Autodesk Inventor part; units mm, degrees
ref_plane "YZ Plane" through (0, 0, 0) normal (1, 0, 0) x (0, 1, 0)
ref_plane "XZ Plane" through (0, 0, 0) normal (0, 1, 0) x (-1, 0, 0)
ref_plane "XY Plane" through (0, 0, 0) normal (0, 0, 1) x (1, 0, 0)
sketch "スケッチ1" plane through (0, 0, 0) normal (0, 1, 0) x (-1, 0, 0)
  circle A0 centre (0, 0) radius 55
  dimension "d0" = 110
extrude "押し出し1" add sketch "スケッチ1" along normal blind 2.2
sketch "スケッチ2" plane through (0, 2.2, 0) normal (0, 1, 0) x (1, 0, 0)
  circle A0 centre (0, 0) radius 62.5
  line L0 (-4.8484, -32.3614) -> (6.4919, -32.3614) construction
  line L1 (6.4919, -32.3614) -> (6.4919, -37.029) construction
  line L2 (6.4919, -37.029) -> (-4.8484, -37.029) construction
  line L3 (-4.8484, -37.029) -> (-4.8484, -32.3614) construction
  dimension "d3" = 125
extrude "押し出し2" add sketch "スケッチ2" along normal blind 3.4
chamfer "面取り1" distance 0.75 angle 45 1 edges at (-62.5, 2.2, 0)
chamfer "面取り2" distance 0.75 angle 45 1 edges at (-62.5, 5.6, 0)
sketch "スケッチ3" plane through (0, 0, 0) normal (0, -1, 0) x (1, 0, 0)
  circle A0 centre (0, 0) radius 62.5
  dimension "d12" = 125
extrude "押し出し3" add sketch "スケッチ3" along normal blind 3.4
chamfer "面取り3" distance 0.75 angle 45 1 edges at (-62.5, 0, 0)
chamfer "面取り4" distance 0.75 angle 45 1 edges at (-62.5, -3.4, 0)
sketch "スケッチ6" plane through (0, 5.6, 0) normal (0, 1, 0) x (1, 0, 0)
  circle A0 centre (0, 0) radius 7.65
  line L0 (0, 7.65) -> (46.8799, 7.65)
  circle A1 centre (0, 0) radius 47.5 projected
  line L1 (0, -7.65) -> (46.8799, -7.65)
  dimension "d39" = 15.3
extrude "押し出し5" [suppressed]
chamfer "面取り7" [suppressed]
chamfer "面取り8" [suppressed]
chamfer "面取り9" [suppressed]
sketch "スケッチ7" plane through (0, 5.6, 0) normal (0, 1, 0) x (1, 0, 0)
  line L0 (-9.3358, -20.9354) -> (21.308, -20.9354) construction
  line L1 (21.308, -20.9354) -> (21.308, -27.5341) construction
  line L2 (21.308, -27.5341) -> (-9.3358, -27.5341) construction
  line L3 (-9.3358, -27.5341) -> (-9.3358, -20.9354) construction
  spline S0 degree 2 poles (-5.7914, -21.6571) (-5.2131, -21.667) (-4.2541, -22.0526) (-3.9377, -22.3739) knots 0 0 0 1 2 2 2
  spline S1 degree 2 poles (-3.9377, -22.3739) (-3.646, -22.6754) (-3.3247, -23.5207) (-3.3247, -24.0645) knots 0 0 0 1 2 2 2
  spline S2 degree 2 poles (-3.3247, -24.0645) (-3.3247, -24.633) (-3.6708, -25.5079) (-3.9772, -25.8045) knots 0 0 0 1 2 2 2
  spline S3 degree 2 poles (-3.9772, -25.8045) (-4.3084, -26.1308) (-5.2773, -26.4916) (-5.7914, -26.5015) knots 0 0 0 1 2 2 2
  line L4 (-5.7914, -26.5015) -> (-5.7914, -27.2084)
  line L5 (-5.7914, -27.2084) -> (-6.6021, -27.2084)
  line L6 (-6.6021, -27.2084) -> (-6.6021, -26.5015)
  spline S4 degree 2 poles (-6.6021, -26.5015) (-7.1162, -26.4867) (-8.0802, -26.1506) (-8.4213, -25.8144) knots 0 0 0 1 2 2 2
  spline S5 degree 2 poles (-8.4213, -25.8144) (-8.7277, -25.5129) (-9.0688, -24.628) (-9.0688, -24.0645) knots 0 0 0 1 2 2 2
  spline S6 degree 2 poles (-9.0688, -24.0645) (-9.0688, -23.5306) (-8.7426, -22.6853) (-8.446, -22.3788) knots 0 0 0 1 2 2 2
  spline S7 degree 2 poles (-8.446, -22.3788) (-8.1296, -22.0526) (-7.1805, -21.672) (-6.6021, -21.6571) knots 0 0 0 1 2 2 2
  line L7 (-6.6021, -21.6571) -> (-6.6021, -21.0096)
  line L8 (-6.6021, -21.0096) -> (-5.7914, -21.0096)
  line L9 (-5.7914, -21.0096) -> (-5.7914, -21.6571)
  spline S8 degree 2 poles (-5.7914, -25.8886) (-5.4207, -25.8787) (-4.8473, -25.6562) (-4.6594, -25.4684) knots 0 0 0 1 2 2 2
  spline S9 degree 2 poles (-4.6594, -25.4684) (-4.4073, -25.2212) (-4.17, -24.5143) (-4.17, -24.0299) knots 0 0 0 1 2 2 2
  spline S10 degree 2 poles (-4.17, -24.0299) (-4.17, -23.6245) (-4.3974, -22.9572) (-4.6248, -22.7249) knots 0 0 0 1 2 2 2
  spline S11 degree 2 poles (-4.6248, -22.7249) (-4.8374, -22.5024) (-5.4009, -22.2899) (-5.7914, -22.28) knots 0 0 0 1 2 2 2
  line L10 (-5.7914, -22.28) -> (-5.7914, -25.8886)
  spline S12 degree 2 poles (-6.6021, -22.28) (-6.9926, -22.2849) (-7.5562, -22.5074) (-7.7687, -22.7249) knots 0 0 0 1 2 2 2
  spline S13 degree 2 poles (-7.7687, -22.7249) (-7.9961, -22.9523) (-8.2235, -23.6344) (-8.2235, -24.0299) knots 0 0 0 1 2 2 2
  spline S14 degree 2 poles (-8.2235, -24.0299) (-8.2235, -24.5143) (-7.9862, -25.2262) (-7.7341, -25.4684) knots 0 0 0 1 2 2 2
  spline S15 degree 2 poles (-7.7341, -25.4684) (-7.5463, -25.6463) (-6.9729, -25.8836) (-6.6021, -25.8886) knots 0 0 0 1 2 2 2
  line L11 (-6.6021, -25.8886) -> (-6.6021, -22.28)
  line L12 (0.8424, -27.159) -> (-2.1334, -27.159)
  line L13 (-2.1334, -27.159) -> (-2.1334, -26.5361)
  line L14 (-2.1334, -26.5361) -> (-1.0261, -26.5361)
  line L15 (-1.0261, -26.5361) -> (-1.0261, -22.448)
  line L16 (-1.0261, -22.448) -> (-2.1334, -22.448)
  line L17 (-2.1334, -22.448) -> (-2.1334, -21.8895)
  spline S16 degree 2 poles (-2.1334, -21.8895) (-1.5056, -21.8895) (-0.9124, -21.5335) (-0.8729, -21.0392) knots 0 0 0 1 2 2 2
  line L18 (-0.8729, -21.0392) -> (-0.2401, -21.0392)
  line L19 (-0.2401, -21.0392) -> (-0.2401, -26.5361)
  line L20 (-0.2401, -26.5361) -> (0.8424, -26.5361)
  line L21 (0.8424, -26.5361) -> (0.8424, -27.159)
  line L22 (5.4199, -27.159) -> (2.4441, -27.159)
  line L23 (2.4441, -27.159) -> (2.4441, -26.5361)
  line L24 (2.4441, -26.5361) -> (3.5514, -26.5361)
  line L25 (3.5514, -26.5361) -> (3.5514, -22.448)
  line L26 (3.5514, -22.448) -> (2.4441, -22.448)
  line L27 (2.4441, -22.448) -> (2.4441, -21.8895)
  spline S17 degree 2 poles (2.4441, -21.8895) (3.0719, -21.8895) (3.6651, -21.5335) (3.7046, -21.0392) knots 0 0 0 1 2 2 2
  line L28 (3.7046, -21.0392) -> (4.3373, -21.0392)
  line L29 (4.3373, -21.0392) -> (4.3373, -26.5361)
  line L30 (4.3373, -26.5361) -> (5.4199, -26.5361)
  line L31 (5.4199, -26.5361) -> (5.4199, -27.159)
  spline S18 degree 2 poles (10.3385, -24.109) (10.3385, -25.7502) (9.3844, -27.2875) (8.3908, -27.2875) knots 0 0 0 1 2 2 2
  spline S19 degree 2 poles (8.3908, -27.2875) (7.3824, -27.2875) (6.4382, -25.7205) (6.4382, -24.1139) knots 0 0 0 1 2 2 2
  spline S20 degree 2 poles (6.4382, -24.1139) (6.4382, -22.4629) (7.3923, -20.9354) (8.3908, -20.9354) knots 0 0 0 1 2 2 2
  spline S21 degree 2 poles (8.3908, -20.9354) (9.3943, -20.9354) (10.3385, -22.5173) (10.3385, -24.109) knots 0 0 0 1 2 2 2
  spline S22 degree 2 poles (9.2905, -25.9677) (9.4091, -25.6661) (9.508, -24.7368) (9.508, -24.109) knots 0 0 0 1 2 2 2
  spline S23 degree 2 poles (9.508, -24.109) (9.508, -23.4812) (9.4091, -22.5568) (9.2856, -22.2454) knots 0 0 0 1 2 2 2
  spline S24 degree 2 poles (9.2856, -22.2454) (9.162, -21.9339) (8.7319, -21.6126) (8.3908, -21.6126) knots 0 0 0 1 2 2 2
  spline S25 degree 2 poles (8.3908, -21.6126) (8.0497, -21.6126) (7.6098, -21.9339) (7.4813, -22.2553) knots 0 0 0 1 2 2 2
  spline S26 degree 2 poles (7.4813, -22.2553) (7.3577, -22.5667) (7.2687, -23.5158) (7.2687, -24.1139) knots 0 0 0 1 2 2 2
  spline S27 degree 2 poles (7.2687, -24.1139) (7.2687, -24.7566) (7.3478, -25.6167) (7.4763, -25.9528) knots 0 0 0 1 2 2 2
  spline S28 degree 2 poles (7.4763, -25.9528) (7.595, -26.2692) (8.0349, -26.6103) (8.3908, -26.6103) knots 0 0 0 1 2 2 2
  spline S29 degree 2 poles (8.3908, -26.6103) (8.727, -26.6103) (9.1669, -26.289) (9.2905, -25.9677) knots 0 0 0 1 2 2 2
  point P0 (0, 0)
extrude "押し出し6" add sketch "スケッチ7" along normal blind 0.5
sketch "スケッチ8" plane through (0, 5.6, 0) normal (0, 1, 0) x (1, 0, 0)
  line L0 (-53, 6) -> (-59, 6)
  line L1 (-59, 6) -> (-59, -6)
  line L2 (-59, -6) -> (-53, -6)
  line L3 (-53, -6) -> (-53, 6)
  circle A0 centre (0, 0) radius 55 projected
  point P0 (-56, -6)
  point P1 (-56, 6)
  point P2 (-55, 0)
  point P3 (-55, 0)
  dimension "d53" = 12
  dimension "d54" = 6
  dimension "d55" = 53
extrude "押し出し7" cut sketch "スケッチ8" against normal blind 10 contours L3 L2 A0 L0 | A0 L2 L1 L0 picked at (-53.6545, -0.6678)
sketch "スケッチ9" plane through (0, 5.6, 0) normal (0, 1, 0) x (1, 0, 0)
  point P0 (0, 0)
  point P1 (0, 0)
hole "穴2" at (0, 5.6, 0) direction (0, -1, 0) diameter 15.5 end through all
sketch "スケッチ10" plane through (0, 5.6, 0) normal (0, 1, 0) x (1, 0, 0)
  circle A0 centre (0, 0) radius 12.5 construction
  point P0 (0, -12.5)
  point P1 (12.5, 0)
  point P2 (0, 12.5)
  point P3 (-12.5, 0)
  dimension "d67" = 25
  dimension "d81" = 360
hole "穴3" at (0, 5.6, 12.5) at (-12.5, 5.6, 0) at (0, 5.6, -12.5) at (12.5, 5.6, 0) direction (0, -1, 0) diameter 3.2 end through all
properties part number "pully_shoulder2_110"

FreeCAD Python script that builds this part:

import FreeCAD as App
import Part
import Sketcher
Q = App.Units.Quantity


def edges_at(feature, points):
    """Names of the edges that pass closest to the given points."""
    edges = feature.Shape.Edges
    near = lambda p: min(range(len(edges)), key=lambda i: edges[i].distToShape(Part.Vertex(*p))[0])
    return sorted({f"Edge{near(p) + 1}" for p in points})

doc = App.newDocument("Part")
body = doc.addObject("PartDesign::Body", "Body")

# Sketch on XZ plane
sketch1 = body.newObject("Sketcher::SketchObject", "Sketch")
sketch1.AttachmentSupport = (doc.getObject("XZ_Plane"), [""])
sketch1.MapMode = "FlatFace"
sketch1.addGeometry(Part.Circle(App.Vector(0, 0, 0), App.Vector(0, 0, 1), 55), False)
sketch1.addConstraint([
    Sketcher.Constraint("Coincident", 0, 3, -1, 1),
    Sketcher.Constraint("Diameter", 0, Q("110 mm")),
])
pad1 = body.newObject("PartDesign::Pad", "Pad")
pad1.Profile = sketch1
pad1.Length = 2.2
pad1.Reversed = True

# Sketch on XZ plane
sketch2 = body.newObject("Sketcher::SketchObject", "Sketch001")
sketch2.AttachmentSupport = (doc.getObject("XZ_Plane"), [""])
sketch2.MapMode = "FlatFace"
sketch2.AttachmentOffset = App.Placement(App.Vector(0, 0, -2.2), App.Rotation())
sketch2.addGeometry(Part.Circle(App.Vector(0, 0, 0), App.Vector(0, 0, 1), 62), False)
sketch2.addConstraint([
    Sketcher.Constraint("Coincident", 0, 3, -1, 1),
    Sketcher.Constraint("Diameter", 0, Q("125 mm")),
])
pad2 = body.newObject("PartDesign::Pad", "Pad001")
pad2.Profile = sketch2
pad2.Length = 3.4
pad2.Reversed = True
doc.recompute()

chamfer = body.newObject("PartDesign::Chamfer", "Chamfer")
chamfer.Base = (pad2, edges_at(pad2, [(-62.5, 2.2, 0)]))
chamfer.Size = 0.75
doc.recompute()

chamfer2 = body.newObject("PartDesign::Chamfer", "Chamfer001")
chamfer2.Base = (chamfer, edges_at(chamfer, [(-62.5, 5.6, 0)]))
chamfer2.Size = 0.75

# Sketch on XZ plane
sketch3 = body.newObject("Sketcher::SketchObject", "Sketch002")
sketch3.AttachmentSupport = (doc.getObject("XZ_Plane"), [""])
sketch3.MapMode = "FlatFace"
sketch3.addGeometry(Part.Circle(App.Vector(0, 0, 0), App.Vector(0, 0, 1), 62), False)
sketch3.addConstraint([
    Sketcher.Constraint("Coincident", 0, 3, -1, 1),
    Sketcher.Constraint("Diameter", 0, Q("125 mm")),
])
pad3 = body.newObject("PartDesign::Pad", "Pad002")
pad3.Profile = sketch3
pad3.Length = 3.4
doc.recompute()

chamfer3 = body.newObject("PartDesign::Chamfer", "Chamfer002")
chamfer3.Base = (pad3, edges_at(pad3, [(-62.5, 0, 0)]))
chamfer3.Size = 0.75
doc.recompute()

chamfer4 = body.newObject("PartDesign::Chamfer", "Chamfer003")
chamfer4.Base = (chamfer3, edges_at(chamfer3, [(-62.5, -3.4, 0)]))
chamfer4.Size = 0.75

# Sketch on XZ plane
sketch4 = body.newObject("Sketcher::SketchObject", "Sketch003")
sketch4.AttachmentSupport = (doc.getObject("XZ_Plane"), [""])
sketch4.MapMode = "FlatFace"
sketch4.AttachmentOffset = App.Placement(App.Vector(0, 0, -5.6), App.Rotation())
sketch4.addGeometry([
    Part.BSplineCurve([App.Vector(-5.7914, 21.6571, 0), App.Vector(-5.2131, 21.667, 0), App.Vector(-4.2541, 22.0526, 0), App.Vector(-3.9377, 22.3739, 0)], [3, 1, 3], [0, 1, 2], False, 2, [1, 1, 1, 1], False),  # 0
    Part.LineSegment(App.Vector(-5.7914, 21.6571, 0), App.Vector(-5.7914, 21.0096, 0)),  # 1
    Part.LineSegment(App.Vector(-5.7914, 21.0096, 0), App.Vector(-6.6021, 21.0096, 0)),  # 2
    Part.LineSegment(App.Vector(-6.6021, 21.0096, 0), App.Vector(-6.6021, 21.6571, 0)),  # 3
    Part.BSplineCurve([App.Vector(-8.446, 22.3788, 0), App.Vector(-8.1296, 22.0526, 0), App.Vector(-7.1805, 21.672, 0), App.Vector(-6.6021, 21.6571, 0)], [3, 1, 3], [0, 1, 2], False, 2, [1, 1, 1, 1], False),  # 4
    Part.BSplineCurve([App.Vector(-9.0688, 24.0645, 0), App.Vector(-9.0688, 23.5306, 0), App.Vector(-8.7426, 22.6853, 0), App.Vector(-8.446, 22.3788, 0)], [3, 1, 3], [0, 1, 2], False, 2, [1, 1, 1, 1], False),  # 5
    Part.BSplineCurve([App.Vector(-8.4213, 25.8144, 0), App.Vector(-8.7277, 25.5129, 0), App.Vector(-9.0688, 24.628, 0), App.Vector(-9.0688, 24.0645, 0)], [3, 1, 3], [0, 1, 2], False, 2, [1, 1, 1, 1], False),  # 6
    Part.BSplineCurve([App.Vector(-6.6021, 26.5015, 0), App.Vector(-7.1162, 26.4867, 0), App.Vector(-8.0802, 26.1506, 0), App.Vector(-8.4213, 25.8144, 0)], [3, 1, 3], [0, 1, 2], False, 2, [1, 1, 1, 1], False),  # 7
    Part.LineSegment(App.Vector(-6.6021, 26.5015, 0), App.Vector(-6.6021, 27.2084, 0)),  # 8
    Part.LineSegment(App.Vector(-6.6021, 27.2084, 0), App.Vector(-5.7914, 27.2084, 0)),  # 9
    Part.LineSegment(App.Vector(-5.7914, 27.2084, 0), App.Vector(-5.7914, 26.5015, 0)),  # 10
    Part.BSplineCurve([App.Vector(-3.9772, 25.8045, 0), App.Vector(-4.3084, 26.1308, 0), App.Vector(-5.2773, 26.4916, 0), App.Vector(-5.7914, 26.5015, 0)], [3, 1, 3], [0, 1, 2], False, 2, [1, 1, 1, 1], False),  # 11
    Part.BSplineCurve([App.Vector(-3.3247, 24.0645, 0), App.Vector(-3.3247, 24.633, 0), App.Vector(-3.6708, 25.5079, 0), App.Vector(-3.9772, 25.8045, 0)], [3, 1, 3], [0, 1, 2], False, 2, [1, 1, 1, 1], False),  # 12
    Part.BSplineCurve([App.Vector(-3.9377, 22.3739, 0), App.Vector(-3.646, 22.6754, 0), App.Vector(-3.3247, 23.5207, 0), App.Vector(-3.3247, 24.0645, 0)], [3, 1, 3], [0, 1, 2], False, 2, [1, 1, 1, 1], False),  # 13
    Part.BSplineCurve([App.Vector(-6.6021, 22.28, 0), App.Vector(-6.9926, 22.2849, 0), App.Vector(-7.5562, 22.5074, 0), App.Vector(-7.7687, 22.7249, 0)], [3, 1, 3], [0, 1, 2], False, 2, [1, 1, 1, 1], False),  # 14
    Part.LineSegment(App.Vector(-6.6021, 22.28, 0), App.Vector(-6.6021, 25.8886, 0)),  # 15
    Part.BSplineCurve([App.Vector(-7.7341, 25.4684, 0), App.Vector(-7.5463, 25.6463, 0), App.Vector(-6.9729, 25.8836, 0), App.Vector(-6.6021, 25.8886, 0)], [3, 1, 3], [0, 1, 2], False, 2, [1, 1, 1, 1], False),  # 16
    Part.BSplineCurve([App.Vector(-8.2235, 24.0299, 0), App.Vector(-8.2235, 24.5143, 0), App.Vector(-7.9862, 25.2262, 0), App.Vector(-7.7341, 25.4684, 0)], [3, 1, 3], [0, 1, 2], False, 2, [1, 1, 1, 1], False),  # 17
    Part.BSplineCurve([App.Vector(-7.7687, 22.7249, 0), App.Vector(-7.9961, 22.9523, 0), App.Vector(-8.2235, 23.6344, 0), App.Vector(-8.2235, 24.0299, 0)], [3, 1, 3], [0, 1, 2], False, 2, [1, 1, 1, 1], False),  # 18
    Part.BSplineCurve([App.Vector(-5.7914, 25.8886, 0), App.Vector(-5.4207, 25.8787, 0), App.Vector(-4.8473, 25.6562, 0), App.Vector(-4.6594, 25.4684, 0)], [3, 1, 3], [0, 1, 2], False, 2, [1, 1, 1, 1], False),  # 19
    Part.LineSegment(App.Vector(-5.7914, 25.8886, 0), App.Vector(-5.7914, 22.28, 0)),  # 20
    Part.BSplineCurve([App.Vector(-4.6248, 22.7249, 0), App.Vector(-4.8374, 22.5024, 0), App.Vector(-5.4009, 22.2899, 0), App.Vector(-5.7914, 22.28, 0)], [3, 1, 3], [0, 1, 2], False, 2, [1, 1, 1, 1], False),  # 21
    Part.BSplineCurve([App.Vector(-4.17, 24.0299, 0), App.Vector(-4.17, 23.6245, 0), App.Vector(-4.3974, 22.9572, 0), App.Vector(-4.6248, 22.7249, 0)], [3, 1, 3], [0, 1, 2], False, 2, [1, 1, 1, 1], False),  # 22
    Part.BSplineCurve([App.Vector(-4.6594, 25.4684, 0), App.Vector(-4.4073, 25.2212, 0), App.Vector(-4.17, 24.5143, 0), App.Vector(-4.17, 24.0299, 0)], [3, 1, 3], [0, 1, 2], False, 2, [1, 1, 1, 1], False),  # 23
    Part.LineSegment(App.Vector(-2.1334, 27.159, 0), App.Vector(0.8424, 27.159, 0)),  # 24
    Part.LineSegment(App.Vector(0.8424, 27.159, 0), App.Vector(0.8424, 26.5361, 0)),  # 25
    Part.LineSegment(App.Vector(0.8424, 26.5361, 0), App.Vector(-0.2401, 26.5361, 0)),  # 26
    Part.LineSegment(App.Vector(-0.2401, 26.5361, 0), App.Vector(-0.2401, 21.0392, 0)),  # 27
    Part.LineSegment(App.Vector(-0.2401, 21.0392, 0), App.Vector(-0.8729, 21.0392, 0)),  # 28
    Part.BSplineCurve([App.Vector(-2.1334, 21.8895, 0), App.Vector(-1.5056, 21.8895, 0), App.Vector(-0.9124, 21.5335, 0), App.Vector(-0.8729, 21.0392, 0)], [3, 1, 3], [0, 1, 2], False, 2, [1, 1, 1, 1], False),  # 29
    Part.LineSegment(App.Vector(-2.1334, 21.8895, 0), App.Vector(-2.1334, 22.448, 0)),  # 30
    Part.LineSegment(App.Vector(-2.1334, 22.448, 0), App.Vector(-1.0261, 22.448, 0)),  # 31
    Part.LineSegment(App.Vector(-1.0261, 22.448, 0), App.Vector(-1.0261, 26.5361, 0)),  # 32
    Part.LineSegment(App.Vector(-1.0261, 26.5361, 0), App.Vector(-2.1334, 26.5361, 0)),  # 33
    Part.LineSegment(App.Vector(-2.1334, 26.5361, 0), App.Vector(-2.1334, 27.159, 0)),  # 34
    Part.LineSegment(App.Vector(2.4441, 27.159, 0), App.Vector(5.4199, 27.159, 0)),  # 35
    Part.LineSegment(App.Vector(5.4199, 27.159, 0), App.Vector(5.4199, 26.5361, 0)),  # 36
    Part.LineSegment(App.Vector(5.4199, 26.5361, 0), App.Vector(4.3373, 26.5361, 0)),  # 37
    Part.LineSegment(App.Vector(4.3373, 26.5361, 0), App.Vector(4.3373, 21.0392, 0)),  # 38
    Part.LineSegment(App.Vector(4.3373, 21.0392, 0), App.Vector(3.7046, 21.0392, 0)),  # 39
    Part.BSplineCurve([App.Vector(2.4441, 21.8895, 0), App.Vector(3.0719, 21.8895, 0), App.Vector(3.6651, 21.5335, 0), App.Vector(3.7046, 21.0392, 0)], [3, 1, 3], [0, 1, 2], False, 2, [1, 1, 1, 1], False),  # 40
    Part.LineSegment(App.Vector(2.4441, 21.8895, 0), App.Vector(2.4441, 22.448, 0)),  # 41
    Part.LineSegment(App.Vector(2.4441, 22.448, 0), App.Vector(3.5514, 22.448, 0)),  # 42
    Part.LineSegment(App.Vector(3.5514, 22.448, 0), App.Vector(3.5514, 26.5361, 0)),  # 43
    Part.LineSegment(App.Vector(3.5514, 26.5361, 0), App.Vector(2.4441, 26.5361, 0)),  # 44
    Part.LineSegment(App.Vector(2.4441, 26.5361, 0), App.Vector(2.4441, 27.159, 0)),  # 45
    Part.BSplineCurve([App.Vector(10.3385, 24.109, 0), App.Vector(10.3385, 25.7502, 0), App.Vector(9.3844, 27.2875, 0), App.Vector(8.3908, 27.2875, 0)], [3, 1, 3], [0, 1, 2], False, 2, [1, 1, 1, 1], False),  # 46
    Part.BSplineCurve([App.Vector(8.3908, 20.9354, 0), App.Vector(9.3943, 20.9354, 0), App.Vector(10.3385, 22.5173, 0), App.Vector(10.3385, 24.109, 0)], [3, 1, 3], [0, 1, 2], False, 2, [1, 1, 1, 1], False),  # 47
    Part.BSplineCurve([App.Vector(6.4382, 24.1139, 0), App.Vector(6.4382, 22.4629, 0), App.Vector(7.3923, 20.9354, 0), App.Vector(8.3908, 20.9354, 0)], [3, 1, 3], [0, 1, 2], False, 2, [1, 1, 1, 1], False),  # 48
    Part.BSplineCurve([App.Vector(8.3908, 27.2875, 0), App.Vector(7.3824, 27.2875, 0), App.Vector(6.4382, 25.7205, 0), App.Vector(6.4382, 24.1139, 0)], [3, 1, 3], [0, 1, 2], False, 2, [1, 1, 1, 1], False),  # 49
    Part.BSplineCurve([App.Vector(9.2905, 25.9677, 0), App.Vector(9.4091, 25.6661, 0), App.Vector(9.508, 24.7368, 0), App.Vector(9.508, 24.109, 0)], [3, 1, 3], [0, 1, 2], False, 2, [1, 1, 1, 1], False),  # 50
    Part.BSplineCurve([App.Vector(8.3908, 26.6103, 0), App.Vector(8.727, 26.6103, 0), App.Vector(9.1669, 26.289, 0), App.Vector(9.2905, 25.9677, 0)], [3, 1, 3], [0, 1, 2], False, 2, [1, 1, 1, 1], False),  # 51
    Part.BSplineCurve([App.Vector(7.4763, 25.9528, 0), App.Vector(7.595, 26.2692, 0), App.Vector(8.0349, 26.6103, 0), App.Vector(8.3908, 26.6103, 0)], [3, 1, 3], [0, 1, 2], False, 2, [1, 1, 1, 1], False),  # 52
    Part.BSplineCurve([App.Vector(7.2687, 24.1139, 0), App.Vector(7.2687, 24.7566, 0), App.Vector(7.3478, 25.6167, 0), App.Vector(7.4763, 25.9528, 0)], [3, 1, 3], [0, 1, 2], False, 2, [1, 1, 1, 1], False),  # 53
    Part.BSplineCurve([App.Vector(7.4813, 22.2553, 0), App.Vector(7.3577, 22.5667, 0), App.Vector(7.2687, 23.5158, 0), App.Vector(7.2687, 24.1139, 0)], [3, 1, 3], [0, 1, 2], False, 2, [1, 1, 1, 1], False),  # 54
    Part.BSplineCurve([App.Vector(8.3908, 21.6126, 0), App.Vector(8.0497, 21.6126, 0), App.Vector(7.6098, 21.9339, 0), App.Vector(7.4813, 22.2553, 0)], [3, 1, 3], [0, 1, 2], False, 2, [1, 1, 1, 1], False),  # 55
    Part.BSplineCurve([App.Vector(9.2856, 22.2454, 0), App.Vector(9.162, 21.9339, 0), App.Vector(8.7319, 21.6126, 0), App.Vector(8.3908, 21.6126, 0)], [3, 1, 3], [0, 1, 2], False, 2, [1, 1, 1, 1], False),  # 56
    Part.BSplineCurve([App.Vector(9.508, 24.109, 0), App.Vector(9.508, 23.4812, 0), App.Vector(9.4091, 22.5568, 0), App.Vector(9.2856, 22.2454, 0)], [3, 1, 3], [0, 1, 2], False, 2, [1, 1, 1, 1], False),  # 57
], False)
sketch4.addConstraint([
    Sketcher.Constraint("Block", 0),
    Sketcher.Constraint("Block", 4),
    Sketcher.Constraint("Block", 5),
    Sketcher.Constraint("Block", 6),
    Sketcher.Constraint("Block", 7),
    Sketcher.Constraint("Block", 11),
    Sketcher.Constraint("Block", 12),
    Sketcher.Constraint("Block", 13),
    Sketcher.Constraint("Block", 14),
    Sketcher.Constraint("Block", 16),
    Sketcher.Constraint("Block", 17),
    Sketcher.Constraint("Block", 18),
    Sketcher.Constraint("Block", 19),
    Sketcher.Constraint("Block", 21),
    Sketcher.Constraint("Block", 22),
    Sketcher.Constraint("Block", 23),
    Sketcher.Constraint("Block", 29),
    Sketcher.Constraint("Block", 40),
    Sketcher.Constraint("Block", 46),
    Sketcher.Constraint("Block", 47),
    Sketcher.Constraint("Block", 48),
    Sketcher.Constraint("Block", 49),
    Sketcher.Constraint("Block", 50),
    Sketcher.Constraint("Block", 51),
    Sketcher.Constraint("Block", 52),
    Sketcher.Constraint("Block", 53),
    Sketcher.Constraint("Block", 54),
    Sketcher.Constraint("Block", 55),
    Sketcher.Constraint("Block", 56),
    Sketcher.Constraint("Block", 57),
    Sketcher.Constraint("Coincident", 0, 1, 1, 1),
    Sketcher.Constraint("Coincident", 1, 2, 2, 1),
    Sketcher.Constraint("Coincident", 2, 2, 3, 1),
    Sketcher.Constraint("Coincident", 3, 2, 4, 2),
    Sketcher.Constraint("Coincident", 7, 1, 8, 1),
    Sketcher.Constraint("Coincident", 8, 2, 9, 1),
    Sketcher.Constraint("Coincident", 9, 2, 10, 1),
    Sketcher.Constraint("Coincident", 10, 2, 11, 2),
    Sketcher.Constraint("Coincident", 14, 1, 15, 1),
    Sketcher.Constraint("Coincident", 15, 2, 16, 2),
    Sketcher.Constraint("Coincident", 19, 1, 20, 1),
    Sketcher.Constraint("Coincident", 20, 2, 21, 2),
    Sketcher.Constraint("Coincident", 24, 2, 25, 1),
    Sketcher.Constraint("Coincident", 25, 2, 26, 1),
    Sketcher.Constraint("Coincident", 26, 2, 27, 1),
    Sketcher.Constraint("Coincident", 27, 2, 28, 1),
    Sketcher.Constraint("Coincident", 28, 2, 29, 2),
    Sketcher.Constraint("Coincident", 29, 1, 30, 1),
    Sketcher.Constraint("Coincident", 30, 2, 31, 1),
    Sketcher.Constraint("Coincident", 31, 2, 32, 1),
    Sketcher.Constraint("Coincident", 32, 2, 33, 1),
    Sketcher.Constraint("Coincident", 33, 2, 34, 1),
    Sketcher.Constraint("Coincident", 34, 2, 24, 1),
    Sketcher.Constraint("Coincident", 35, 2, 36, 1),
    Sketcher.Constraint("Coincident", 36, 2, 37, 1),
    Sketcher.Constraint("Coincident", 37, 2, 38, 1),
    Sketcher.Constraint("Coincident", 38, 2, 39, 1),
    Sketcher.Constraint("Coincident", 39, 2, 40, 2),
    Sketcher.Constraint("Coincident", 40, 1, 41, 1),
    Sketcher.Constraint("Coincident", 41, 2, 42, 1),
    Sketcher.Constraint("Coincident", 42, 2, 43, 1),
    Sketcher.Constraint("Coincident", 43, 2, 44, 1),
    Sketcher.Constraint("Coincident", 44, 2, 45, 1),
    Sketcher.Constraint("Coincident", 45, 2, 35, 1),
    Sketcher.Constraint("Vertical", 1),
    Sketcher.Constraint("Horizontal", 2),
    Sketcher.Constraint("Vertical", 3),
    Sketcher.Constraint("Vertical", 8),
    Sketcher.Constraint("Horizontal", 9),
    Sketcher.Constraint("Vertical", 10),
    Sketcher.Constraint("Horizontal", 24),
    Sketcher.Constraint("Vertical", 25),
    Sketcher.Constraint("Horizontal", 26),
    Sketcher.Constraint("Vertical", 27),
    Sketcher.Constraint("Horizontal", 28),
    Sketcher.Constraint("Vertical", 30),
    Sketcher.Constraint("Horizontal", 31),
    Sketcher.Constraint("Vertical", 32),
    Sketcher.Constraint("Horizontal", 33),
    Sketcher.Constraint("Vertical", 34),
    Sketcher.Constraint("Horizontal", 35),
    Sketcher.Constraint("Vertical", 36),
    Sketcher.Constraint("Horizontal", 37),
    Sketcher.Constraint("Vertical", 38),
    Sketcher.Constraint("Horizontal", 39),
    Sketcher.Constraint("Vertical", 41),
    Sketcher.Constraint("Horizontal", 42),
    Sketcher.Constraint("Vertical", 43),
    Sketcher.Constraint("Horizontal", 44),
    Sketcher.Constraint("Vertical", 45),
    Sketcher.Constraint("Horizontal", 26, 2, 32, 2),
    Sketcher.Constraint("Horizontal", 34, 2, 35, 2),
    Sketcher.Constraint("Horizontal", 33, 2, 36, 2),
    Sketcher.Constraint("Horizontal", 31, 2, 41, 2),
    Sketcher.Constraint("Horizontal", 37, 2, 43, 2),
    Sketcher.Constraint("Vertical", 30, 2, 33, 2),
    Sketcher.Constraint("Vertical", 41, 2, 44, 2),
    Sketcher.Constraint("Equal", 24, 35),
    Sketcher.Constraint("Equal", 26, 37),
    Sketcher.Constraint("Equal", 33, 42),
    Sketcher.Constraint("DistanceY", 8, 1, 8, 2, Q("0.707 mm")),
    Sketcher.Constraint("DistanceY", 25, 2, 25, 1, Q("0.623 mm")),
    Sketcher.Constraint("DistanceY", 27, 2, 27, 1, Q("5.497 mm")),
    Sketcher.Constraint("DistanceY", 32, 1, 32, 2, Q("4.088 mm")),
    Sketcher.Constraint("DistanceX", 26, 2, -1, 1, Q("0.24 mm")),
    Sketcher.Constraint("DistanceX", -1, 1, 35, 2, Q("5.42 mm")),
    Sketcher.Constraint("DistanceX", 31, 1, 31, 2, Q("1.1073 mm")),
    Sketcher.Constraint("DistanceY", 1, 2, 1, 1, Q("0.6475 mm")),
])
pad4 = body.newObject("PartDesign::Pad", "Pad003")
pad4.Profile = sketch4
pad4.Length = 0.5
pad4.Reversed = True

# Sketch on XZ plane
sketch5 = body.newObject("Sketcher::SketchObject", "Sketch004")
sketch5.AttachmentSupport = (doc.getObject("XZ_Plane"), [""])
sketch5.MapMode = "FlatFace"
sketch5.AttachmentOffset = App.Placement(App.Vector(0, 0, -5.6), App.Rotation())
sketch5.addGeometry([
    Part.LineSegment(App.Vector(-53, 6, 0), App.Vector(-53, -6, 0)),
    Part.LineSegment(App.Vector(-53, -6, 0), App.Vector(-59, -6, 0)),
    Part.LineSegment(App.Vector(-59, -6, 0), App.Vector(-59, 6, 0)),
    Part.LineSegment(App.Vector(-59, 6, 0), App.Vector(-53, 6, 0)),
], False)
sketch5.addConstraint([
    Sketcher.Constraint("Coincident", 0, 2, 1, 1),
    Sketcher.Constraint("Coincident", 1, 2, 2, 1),
    Sketcher.Constraint("Coincident", 2, 2, 3, 1),
    Sketcher.Constraint("Coincident", 3, 2, 0, 1),
    Sketcher.Constraint("Vertical", 0),
    Sketcher.Constraint("Horizontal", 1),
    Sketcher.Constraint("Vertical", 2),
    Sketcher.Constraint("Horizontal", 3),
    Sketcher.Constraint("DistanceX", 1, 2, 1, 1, Q("6 mm")),
    Sketcher.Constraint("DistanceY", 0, 2, 0, 1, Q("12 mm")),
    Sketcher.Constraint("DistanceX", 0, 2, -1, 1, Q("53 mm")),
    Sketcher.Constraint("DistanceY", 0, 2, -1, 1, Q("6 mm")),
])
pocket1 = body.newObject("PartDesign::Pocket", "Pocket")
pocket1.Profile = sketch5
pocket1.Length = 10
pocket1.Reversed = True

# Sketch on XZ plane
sketch6 = body.newObject("Sketcher::SketchObject", "Sketch005")
sketch6.AttachmentSupport = (doc.getObject("XZ_Plane"), [""])
sketch6.MapMode = "FlatFace"
sketch6.AttachmentOffset = App.Placement(App.Vector(0, 0, -5.6), App.Rotation())
sketch6.addGeometry(Part.Circle(App.Vector(0, 0, 0), App.Vector(0, 0, 1), 8), False)
sketch6.addConstraint([
    Sketcher.Constraint("Coincident", 0, 3, -1, 1),
    Sketcher.Constraint("Diameter", 0, Q("15.5 mm")),
])
doc.recompute()
hole = body.newObject("PartDesign::Hole", "Hole")
hole.Profile = sketch6
hole.ThreadType = "None"
hole.Diameter = 15.5
hole.DepthType = "ThroughAll"
hole.Reversed = True

# Sketch on XZ plane
sketch7 = body.newObject("Sketcher::SketchObject", "Sketch006")
sketch7.AttachmentSupport = (doc.getObject("XZ_Plane"), [""])
sketch7.MapMode = "FlatFace"
sketch7.AttachmentOffset = App.Placement(App.Vector(0, 0, -5.6), App.Rotation())
sketch7.addGeometry([
    Part.Circle(App.Vector(0, 12.5, 0), App.Vector(0, 0, 1), 1.6),
    Part.Circle(App.Vector(-12.5, 0, 0), App.Vector(0, 0, 1), 1.6),
    Part.Circle(App.Vector(0, -12.5, 0), App.Vector(0, 0, 1), 1.6),
    Part.Circle(App.Vector(12.5, 0, 0), App.Vector(0, 0, 1), 1.6),
], False)
sketch7.addConstraint([
    Sketcher.Constraint("Equal", 0, 1),
    Sketcher.Constraint("Equal", 1, 2),
    Sketcher.Constraint("Equal", 2, 3),
    Sketcher.Constraint("Symmetric", 0, 3, 2, 3, -1, 1),
    Sketcher.Constraint("Symmetric", 1, 3, 3, 3, -1, 1),
    Sketcher.Constraint("PointOnObject", 0, 3, -2),
    Sketcher.Constraint("PointOnObject", 1, 3, -1),
    Sketcher.Constraint("Diameter", 0, Q("3.2 mm")),
    Sketcher.Constraint("DistanceY", 2, 3, 0, 3, Q("25 mm")),
    Sketcher.Constraint("DistanceX", 1, 3, 3, 3, Q("25 mm")),
])
doc.recompute()
hole2 = body.newObject("PartDesign::Hole", "Hole001")
hole2.Profile = sketch7
hole2.ThreadType = "None"
hole2.Diameter = 3.2
hole2.DepthType = "ThroughAll"
hole2.Reversed = True

doc.recompute()
